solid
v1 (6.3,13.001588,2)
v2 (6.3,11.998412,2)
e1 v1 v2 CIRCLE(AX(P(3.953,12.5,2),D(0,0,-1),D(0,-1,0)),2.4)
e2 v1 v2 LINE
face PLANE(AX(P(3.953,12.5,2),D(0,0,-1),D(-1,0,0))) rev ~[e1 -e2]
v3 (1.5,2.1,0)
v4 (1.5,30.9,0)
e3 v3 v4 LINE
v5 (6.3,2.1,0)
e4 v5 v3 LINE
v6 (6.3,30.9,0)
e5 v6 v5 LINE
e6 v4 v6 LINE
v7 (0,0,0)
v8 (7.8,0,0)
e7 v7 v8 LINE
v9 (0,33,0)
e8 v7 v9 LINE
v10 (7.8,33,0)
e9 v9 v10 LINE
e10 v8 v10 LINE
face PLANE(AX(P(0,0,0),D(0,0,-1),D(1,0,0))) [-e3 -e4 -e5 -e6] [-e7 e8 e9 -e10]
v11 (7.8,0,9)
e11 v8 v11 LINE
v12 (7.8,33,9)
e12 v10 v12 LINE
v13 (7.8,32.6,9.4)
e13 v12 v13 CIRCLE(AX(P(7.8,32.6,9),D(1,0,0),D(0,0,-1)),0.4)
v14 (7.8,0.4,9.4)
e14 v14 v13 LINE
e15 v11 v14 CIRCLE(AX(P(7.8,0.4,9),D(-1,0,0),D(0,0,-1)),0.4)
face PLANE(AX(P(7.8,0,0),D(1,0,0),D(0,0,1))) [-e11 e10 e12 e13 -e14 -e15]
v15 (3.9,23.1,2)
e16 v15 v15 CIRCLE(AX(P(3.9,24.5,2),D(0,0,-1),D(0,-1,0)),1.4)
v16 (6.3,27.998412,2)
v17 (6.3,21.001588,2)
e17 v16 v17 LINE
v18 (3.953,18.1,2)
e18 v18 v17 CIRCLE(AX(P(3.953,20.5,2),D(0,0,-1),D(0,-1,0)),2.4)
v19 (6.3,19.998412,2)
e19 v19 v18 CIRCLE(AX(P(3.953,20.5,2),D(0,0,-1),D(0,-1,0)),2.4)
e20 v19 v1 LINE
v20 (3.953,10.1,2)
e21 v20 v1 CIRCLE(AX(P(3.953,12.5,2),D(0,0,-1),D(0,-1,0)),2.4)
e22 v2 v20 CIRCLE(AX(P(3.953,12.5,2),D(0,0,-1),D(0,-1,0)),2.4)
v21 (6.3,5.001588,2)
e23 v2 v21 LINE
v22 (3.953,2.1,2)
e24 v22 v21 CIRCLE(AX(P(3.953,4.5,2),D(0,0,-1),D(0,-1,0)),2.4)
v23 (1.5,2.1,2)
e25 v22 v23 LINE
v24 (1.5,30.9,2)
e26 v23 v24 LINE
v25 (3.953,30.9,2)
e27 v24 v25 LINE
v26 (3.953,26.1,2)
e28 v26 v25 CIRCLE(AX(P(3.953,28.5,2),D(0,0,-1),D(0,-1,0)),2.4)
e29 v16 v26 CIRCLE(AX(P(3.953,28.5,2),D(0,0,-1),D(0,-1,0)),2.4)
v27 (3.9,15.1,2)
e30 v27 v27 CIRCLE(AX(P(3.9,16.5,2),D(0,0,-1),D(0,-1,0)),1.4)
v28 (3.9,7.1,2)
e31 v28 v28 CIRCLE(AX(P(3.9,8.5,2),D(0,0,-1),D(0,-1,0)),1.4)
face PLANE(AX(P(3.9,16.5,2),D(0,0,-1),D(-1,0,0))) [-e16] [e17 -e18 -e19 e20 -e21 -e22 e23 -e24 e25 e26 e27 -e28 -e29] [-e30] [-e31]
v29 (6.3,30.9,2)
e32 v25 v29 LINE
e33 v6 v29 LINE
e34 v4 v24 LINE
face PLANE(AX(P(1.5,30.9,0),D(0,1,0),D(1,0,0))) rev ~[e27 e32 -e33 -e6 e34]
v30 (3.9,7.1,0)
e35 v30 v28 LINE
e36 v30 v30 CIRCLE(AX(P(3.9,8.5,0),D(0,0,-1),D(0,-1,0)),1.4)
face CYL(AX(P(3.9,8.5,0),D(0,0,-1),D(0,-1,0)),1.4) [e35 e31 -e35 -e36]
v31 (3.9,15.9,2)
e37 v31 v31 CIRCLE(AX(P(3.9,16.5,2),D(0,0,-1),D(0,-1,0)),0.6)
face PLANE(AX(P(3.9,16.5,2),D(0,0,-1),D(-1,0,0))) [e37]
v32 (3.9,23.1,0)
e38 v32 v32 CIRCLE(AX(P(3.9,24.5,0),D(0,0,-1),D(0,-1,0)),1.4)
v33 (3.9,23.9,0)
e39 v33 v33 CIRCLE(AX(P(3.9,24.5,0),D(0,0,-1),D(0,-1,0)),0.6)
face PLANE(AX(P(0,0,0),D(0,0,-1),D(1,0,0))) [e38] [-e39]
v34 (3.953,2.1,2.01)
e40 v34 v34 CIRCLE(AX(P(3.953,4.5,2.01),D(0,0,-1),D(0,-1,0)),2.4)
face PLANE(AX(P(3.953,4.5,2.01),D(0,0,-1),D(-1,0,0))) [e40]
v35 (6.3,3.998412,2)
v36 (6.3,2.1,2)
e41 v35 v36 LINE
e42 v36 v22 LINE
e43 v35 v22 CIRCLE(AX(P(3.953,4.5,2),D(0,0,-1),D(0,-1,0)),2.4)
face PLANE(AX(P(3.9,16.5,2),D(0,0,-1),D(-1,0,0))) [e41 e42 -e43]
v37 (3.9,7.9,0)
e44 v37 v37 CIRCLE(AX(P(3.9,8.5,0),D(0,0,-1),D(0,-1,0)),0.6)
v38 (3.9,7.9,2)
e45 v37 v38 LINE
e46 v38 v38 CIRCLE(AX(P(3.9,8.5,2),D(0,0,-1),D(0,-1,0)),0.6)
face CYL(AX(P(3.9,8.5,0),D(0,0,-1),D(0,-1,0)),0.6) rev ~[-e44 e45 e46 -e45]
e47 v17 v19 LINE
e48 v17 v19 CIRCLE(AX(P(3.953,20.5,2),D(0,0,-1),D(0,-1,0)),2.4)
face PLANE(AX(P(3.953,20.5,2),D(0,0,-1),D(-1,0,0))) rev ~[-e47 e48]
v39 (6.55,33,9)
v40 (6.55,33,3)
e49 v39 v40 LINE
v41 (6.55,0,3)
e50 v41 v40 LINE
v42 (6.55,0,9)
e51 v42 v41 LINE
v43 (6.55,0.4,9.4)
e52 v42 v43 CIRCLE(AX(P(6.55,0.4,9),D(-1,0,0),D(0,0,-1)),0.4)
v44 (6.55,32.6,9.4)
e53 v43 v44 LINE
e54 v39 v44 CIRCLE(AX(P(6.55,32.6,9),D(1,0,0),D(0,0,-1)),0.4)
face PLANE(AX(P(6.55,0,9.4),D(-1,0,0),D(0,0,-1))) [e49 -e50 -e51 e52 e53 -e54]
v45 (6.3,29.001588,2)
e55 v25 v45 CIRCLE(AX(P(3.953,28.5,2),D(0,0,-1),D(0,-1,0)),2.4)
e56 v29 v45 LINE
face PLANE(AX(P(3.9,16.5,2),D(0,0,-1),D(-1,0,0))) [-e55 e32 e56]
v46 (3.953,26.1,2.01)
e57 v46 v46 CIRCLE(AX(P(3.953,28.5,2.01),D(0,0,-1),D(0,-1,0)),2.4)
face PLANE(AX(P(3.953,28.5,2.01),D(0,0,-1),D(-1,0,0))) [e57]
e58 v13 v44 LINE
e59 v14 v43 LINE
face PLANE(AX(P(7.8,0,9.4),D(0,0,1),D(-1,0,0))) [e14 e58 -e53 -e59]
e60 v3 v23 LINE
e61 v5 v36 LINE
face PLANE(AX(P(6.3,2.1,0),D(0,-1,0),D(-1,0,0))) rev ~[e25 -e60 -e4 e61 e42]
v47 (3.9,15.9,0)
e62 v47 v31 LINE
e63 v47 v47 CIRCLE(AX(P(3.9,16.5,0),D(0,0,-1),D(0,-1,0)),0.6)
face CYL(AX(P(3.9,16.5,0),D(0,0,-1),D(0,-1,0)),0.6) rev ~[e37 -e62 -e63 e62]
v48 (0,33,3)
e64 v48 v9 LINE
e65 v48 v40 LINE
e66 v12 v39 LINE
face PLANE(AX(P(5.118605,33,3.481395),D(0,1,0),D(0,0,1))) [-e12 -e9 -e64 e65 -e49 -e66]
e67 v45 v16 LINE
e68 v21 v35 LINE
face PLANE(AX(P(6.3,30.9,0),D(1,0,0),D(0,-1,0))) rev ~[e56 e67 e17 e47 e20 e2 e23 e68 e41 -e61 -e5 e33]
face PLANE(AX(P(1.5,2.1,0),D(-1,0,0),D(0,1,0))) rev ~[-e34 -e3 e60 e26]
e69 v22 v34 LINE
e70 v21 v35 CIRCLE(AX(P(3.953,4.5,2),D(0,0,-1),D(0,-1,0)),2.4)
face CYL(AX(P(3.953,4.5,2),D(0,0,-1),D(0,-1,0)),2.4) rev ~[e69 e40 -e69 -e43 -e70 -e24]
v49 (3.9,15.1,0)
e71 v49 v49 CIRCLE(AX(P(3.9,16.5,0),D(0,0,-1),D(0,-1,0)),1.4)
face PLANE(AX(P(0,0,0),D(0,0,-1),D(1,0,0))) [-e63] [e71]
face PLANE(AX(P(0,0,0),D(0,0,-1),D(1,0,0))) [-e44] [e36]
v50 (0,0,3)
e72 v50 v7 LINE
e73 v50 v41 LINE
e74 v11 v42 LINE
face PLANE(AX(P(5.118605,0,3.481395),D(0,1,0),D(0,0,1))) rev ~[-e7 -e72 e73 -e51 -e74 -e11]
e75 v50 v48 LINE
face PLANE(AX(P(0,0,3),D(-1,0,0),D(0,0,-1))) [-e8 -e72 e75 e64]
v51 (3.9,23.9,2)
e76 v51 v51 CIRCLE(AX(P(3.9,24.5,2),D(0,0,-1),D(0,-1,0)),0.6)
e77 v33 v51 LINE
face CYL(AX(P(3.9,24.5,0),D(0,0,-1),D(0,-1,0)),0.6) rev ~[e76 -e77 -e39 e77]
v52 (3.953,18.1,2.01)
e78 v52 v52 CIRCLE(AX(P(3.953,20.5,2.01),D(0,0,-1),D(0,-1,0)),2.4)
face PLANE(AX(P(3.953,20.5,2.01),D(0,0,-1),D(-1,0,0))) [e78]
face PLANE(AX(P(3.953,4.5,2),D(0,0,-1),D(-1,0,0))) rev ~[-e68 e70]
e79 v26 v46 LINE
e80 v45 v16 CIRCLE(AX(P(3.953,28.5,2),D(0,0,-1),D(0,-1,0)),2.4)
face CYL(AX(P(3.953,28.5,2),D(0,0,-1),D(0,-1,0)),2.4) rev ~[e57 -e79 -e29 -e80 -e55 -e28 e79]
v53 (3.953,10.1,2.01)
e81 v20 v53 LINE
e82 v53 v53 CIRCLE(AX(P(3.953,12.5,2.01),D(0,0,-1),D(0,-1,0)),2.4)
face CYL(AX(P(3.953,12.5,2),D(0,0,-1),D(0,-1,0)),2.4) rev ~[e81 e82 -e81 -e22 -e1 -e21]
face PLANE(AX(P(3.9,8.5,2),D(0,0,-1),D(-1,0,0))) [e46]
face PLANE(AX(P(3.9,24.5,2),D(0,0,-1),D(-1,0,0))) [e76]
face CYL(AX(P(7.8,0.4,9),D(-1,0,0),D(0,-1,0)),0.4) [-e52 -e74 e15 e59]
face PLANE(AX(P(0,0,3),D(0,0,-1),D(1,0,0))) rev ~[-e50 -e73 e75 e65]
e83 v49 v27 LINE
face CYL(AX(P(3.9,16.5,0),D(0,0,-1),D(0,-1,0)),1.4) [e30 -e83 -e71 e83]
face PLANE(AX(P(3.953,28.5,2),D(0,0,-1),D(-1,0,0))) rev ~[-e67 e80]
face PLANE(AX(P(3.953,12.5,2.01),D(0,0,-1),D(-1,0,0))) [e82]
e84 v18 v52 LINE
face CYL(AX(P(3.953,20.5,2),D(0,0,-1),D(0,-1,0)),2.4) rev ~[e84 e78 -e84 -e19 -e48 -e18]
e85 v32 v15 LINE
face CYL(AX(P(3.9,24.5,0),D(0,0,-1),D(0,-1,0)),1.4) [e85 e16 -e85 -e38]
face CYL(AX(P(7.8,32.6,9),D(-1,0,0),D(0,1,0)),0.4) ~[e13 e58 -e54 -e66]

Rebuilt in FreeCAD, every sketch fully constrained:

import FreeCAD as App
import Part
import Sketcher
Q = App.Units.Quantity


def edges_at(feature, points):
    """Names of the edges that pass closest to the given points."""
    edges = feature.Shape.Edges
    near = lambda p: min(range(len(edges)), key=lambda i: edges[i].distToShape(Part.Vertex(*p))[0])
    return sorted({f"Edge{near(p) + 1}" for p in points})

doc = App.newDocument("Part")
body = doc.addObject("PartDesign::Body", "Body")

# Sketch on XZ plane
sketch1 = doc.addObject("Sketcher::SketchObject", "Sketch")
body.addObject(sketch1)
sketch1.AttachmentSupport = (doc.XZ_Plane, [""])
sketch1.MapMode = "FlatFace"
sketch1.addGeometry([
    Part.LineSegment(App.Vector(6.5, 3, 0), App.Vector(0, 3, 0)),  # 0
    Part.LineSegment(App.Vector(0, 3, 0), App.Vector(0, 0, 0)),  # 1
    Part.LineSegment(App.Vector(0, 0, 0), App.Vector(7.8, 0, 0)),  # 2
    Part.LineSegment(App.Vector(7.8, 0, 0), App.Vector(7.8, 9.4, 0)),  # 3
    Part.LineSegment(App.Vector(7.8, 9.4, 0), App.Vector(6.5, 9.4, 0)),  # 4
    Part.LineSegment(App.Vector(6.5, 9.4, 0), App.Vector(6.5, 3, 0)),  # 5
], False)
sketch1.addConstraint([
    Sketcher.Constraint("Coincident", 0, 2, 1, 1),
    Sketcher.Constraint("Coincident", 1, 2, 2, 1),
    Sketcher.Constraint("Coincident", 2, 2, 3, 1),
    Sketcher.Constraint("Coincident", 3, 2, 4, 1),
    Sketcher.Constraint("Coincident", 4, 2, 5, 1),
    Sketcher.Constraint("Coincident", 5, 2, 0, 1),
    Sketcher.Constraint("Horizontal", 0),
    Sketcher.Constraint("Vertical", 1),
    Sketcher.Constraint("Horizontal", 2),
    Sketcher.Constraint("Vertical", 3),
    Sketcher.Constraint("Horizontal", 4),
    Sketcher.Constraint("Vertical", 5),
    Sketcher.Constraint("Coincident", 1, 2, -1, 1),
    Sketcher.Constraint("DistanceY", 1, 2, 1, 1, Q("3 mm")),
    Sketcher.Constraint("DistanceX", 2, 1, 2, 2, Q("7.8 mm")),
    Sketcher.Constraint("DistanceY", 3, 1, 3, 2, Q("9.4 mm")),
    Sketcher.Constraint("DistanceX", 0, 2, 0, 1, Q("6.55 mm")),
])
pad1 = doc.addObject("PartDesign::Pad", "Pad")
body.addObject(pad1)
pad1.Profile = sketch1
pad1.Length = 33
pad1.Reversed = True

# Sketch on XY plane
sketch2 = doc.addObject("Sketcher::SketchObject", "Sketch001")
body.addObject(sketch2)
sketch2.AttachmentSupport = (doc.XY_Plane, [""])
sketch2.MapMode = "FlatFace"
sketch2.addGeometry([
    Part.LineSegment(App.Vector(1.5, 30.9, 0), App.Vector(6.3, 30.9, 0)),  # 0
    Part.LineSegment(App.Vector(6.3, 30.9, 0), App.Vector(6.3, 2.1, 0)),  # 1
    Part.LineSegment(App.Vector(6.3, 2.1, 0), App.Vector(1.5, 2.1, 0)),  # 2
    Part.LineSegment(App.Vector(1.5, 2.1, 0), App.Vector(1.5, 30.9, 0)),  # 3
    Part.Circle(App.Vector(3.9, 24.5, 0), App.Vector(0, 0, 1), 1.4),  # 4
    Part.Circle(App.Vector(3.9, 16.5, 0), App.Vector(0, 0, 1), 1.4),  # 5
    Part.Circle(App.Vector(3.9, 8.5, 0), App.Vector(0, 0, 1), 1.4),  # 6
    Part.Circle(App.Vector(3.9, 24.5, 0), App.Vector(0, 0, 1), 0.6),  # 7
    Part.Circle(App.Vector(3.9, 16.5, 0), App.Vector(0, 0, 1), 0.6),  # 8
    Part.Circle(App.Vector(3.9, 8.5, 0), App.Vector(0, 0, 1), 0.6),  # 9
], False)
sketch2.addConstraint([
    Sketcher.Constraint("Coincident", 0, 2, 1, 1),
    Sketcher.Constraint("Coincident", 1, 2, 2, 1),
    Sketcher.Constraint("Coincident", 2, 2, 3, 1),
    Sketcher.Constraint("Coincident", 3, 2, 0, 1),
    Sketcher.Constraint("Horizontal", 0),
    Sketcher.Constraint("Vertical", 1),
    Sketcher.Constraint("Horizontal", 2),
    Sketcher.Constraint("Vertical", 3),
    Sketcher.Constraint("Coincident", 7, 3, 4, 3),
    Sketcher.Constraint("Coincident", 8, 3, 5, 3),
    Sketcher.Constraint("Coincident", 9, 3, 6, 3),
    Sketcher.Constraint("Equal", 4, 5),
    Sketcher.Constraint("Equal", 5, 6),
    Sketcher.Constraint("Equal", 7, 8),
    Sketcher.Constraint("Equal", 8, 9),
    Sketcher.Constraint("Vertical", 4, 3, 5, 3),
    Sketcher.Constraint("Vertical", 5, 3, 6, 3),
    Sketcher.Constraint("Diameter", 4, Q("2.8 mm")),
    Sketcher.Constraint("Diameter", 7, Q("1.2 mm")),
    Sketcher.Constraint("DistanceX", 0, 1, 0, 2, Q("4.8 mm")),
    Sketcher.Constraint("DistanceY", 1, 2, 1, 1, Q("28.8 mm")),
    Sketcher.Constraint("DistanceY", 5, 3, 4, 3, Q("8 mm")),
    Sketcher.Constraint("DistanceY", 6, 3, 5, 3, Q("8 mm")),
    Sketcher.Constraint("DistanceX", -1, 1, 4, 3, Q("3.9 mm")),
    Sketcher.Constraint("DistanceY", -1, 1, 4, 3, Q("24.5 mm")),
    Sketcher.Constraint("DistanceX", -1, 1, 0, 2, Q("6.3 mm")),
    Sketcher.Constraint("DistanceY", -1, 1, 0, 2, Q("30.9 mm")),
])
pocket1 = doc.addObject("PartDesign::Pocket", "Pocket")
body.addObject(pocket1)
pocket1.Profile = sketch2
pocket1.Length = 2
pocket1.Reversed = True
doc.recompute()

fillet = doc.addObject("PartDesign::Fillet", "Fillet")
body.addObject(fillet)
fillet.Base = (pocket1, edges_at(pocket1, [(7.175, 33, 9.4), (7.175, 0, 9.4)]))
fillet.Radius = 0.4

# Sketch on XY plane
sketch3 = doc.addObject("Sketcher::SketchObject", "Sketch002")
body.addObject(sketch3)
sketch3.AttachmentSupport = (doc.XY_Plane, [""])
sketch3.MapMode = "FlatFace"
sketch3.AttachmentOffset = App.Placement(App.Vector(0, 0, 2), App.Rotation())
sketch3.addGeometry([
    Part.Circle(App.Vector(4, 28.5, 0), App.Vector(0, 0, 1), 2.4),
    Part.Circle(App.Vector(4, 20.5, 0), App.Vector(0, 0, 1), 2.4),
    Part.Circle(App.Vector(4, 12.5, 0), App.Vector(0, 0, 1), 2.4),
    Part.Circle(App.Vector(4, 4.5, 0), App.Vector(0, 0, 1), 2.4),
], False)
sketch3.addConstraint([
    Sketcher.Constraint("Equal", 0, 1),
    Sketcher.Constraint("Equal", 1, 2),
    Sketcher.Constraint("Equal", 2, 3),
    Sketcher.Constraint("Vertical", 0, 3, 1, 3),
    Sketcher.Constraint("Vertical", 1, 3, 2, 3),
    Sketcher.Constraint("Vertical", 2, 3, 3, 3),
    Sketcher.Constraint("Diameter", 0, Q("4.8 mm")),
    Sketcher.Constraint("DistanceY", 1, 3, 0, 3, Q("8 mm")),
    Sketcher.Constraint("DistanceY", 2, 3, 1, 3, Q("8 mm")),
    Sketcher.Constraint("DistanceY", 3, 3, 2, 3, Q("8 mm")),
    Sketcher.Constraint("DistanceY", -1, 1, 0, 3, Q("28.5 mm")),
    Sketcher.Constraint("DistanceX", -1, 1, 0, 3, Q("3.953 mm")),
])
pocket2 = doc.addObject("PartDesign::Pocket", "Pocket001")
body.addObject(pocket2)
pocket2.Profile = sketch3
pocket2.Length = 0.01
pocket2.Reversed = True

doc.recompute()
